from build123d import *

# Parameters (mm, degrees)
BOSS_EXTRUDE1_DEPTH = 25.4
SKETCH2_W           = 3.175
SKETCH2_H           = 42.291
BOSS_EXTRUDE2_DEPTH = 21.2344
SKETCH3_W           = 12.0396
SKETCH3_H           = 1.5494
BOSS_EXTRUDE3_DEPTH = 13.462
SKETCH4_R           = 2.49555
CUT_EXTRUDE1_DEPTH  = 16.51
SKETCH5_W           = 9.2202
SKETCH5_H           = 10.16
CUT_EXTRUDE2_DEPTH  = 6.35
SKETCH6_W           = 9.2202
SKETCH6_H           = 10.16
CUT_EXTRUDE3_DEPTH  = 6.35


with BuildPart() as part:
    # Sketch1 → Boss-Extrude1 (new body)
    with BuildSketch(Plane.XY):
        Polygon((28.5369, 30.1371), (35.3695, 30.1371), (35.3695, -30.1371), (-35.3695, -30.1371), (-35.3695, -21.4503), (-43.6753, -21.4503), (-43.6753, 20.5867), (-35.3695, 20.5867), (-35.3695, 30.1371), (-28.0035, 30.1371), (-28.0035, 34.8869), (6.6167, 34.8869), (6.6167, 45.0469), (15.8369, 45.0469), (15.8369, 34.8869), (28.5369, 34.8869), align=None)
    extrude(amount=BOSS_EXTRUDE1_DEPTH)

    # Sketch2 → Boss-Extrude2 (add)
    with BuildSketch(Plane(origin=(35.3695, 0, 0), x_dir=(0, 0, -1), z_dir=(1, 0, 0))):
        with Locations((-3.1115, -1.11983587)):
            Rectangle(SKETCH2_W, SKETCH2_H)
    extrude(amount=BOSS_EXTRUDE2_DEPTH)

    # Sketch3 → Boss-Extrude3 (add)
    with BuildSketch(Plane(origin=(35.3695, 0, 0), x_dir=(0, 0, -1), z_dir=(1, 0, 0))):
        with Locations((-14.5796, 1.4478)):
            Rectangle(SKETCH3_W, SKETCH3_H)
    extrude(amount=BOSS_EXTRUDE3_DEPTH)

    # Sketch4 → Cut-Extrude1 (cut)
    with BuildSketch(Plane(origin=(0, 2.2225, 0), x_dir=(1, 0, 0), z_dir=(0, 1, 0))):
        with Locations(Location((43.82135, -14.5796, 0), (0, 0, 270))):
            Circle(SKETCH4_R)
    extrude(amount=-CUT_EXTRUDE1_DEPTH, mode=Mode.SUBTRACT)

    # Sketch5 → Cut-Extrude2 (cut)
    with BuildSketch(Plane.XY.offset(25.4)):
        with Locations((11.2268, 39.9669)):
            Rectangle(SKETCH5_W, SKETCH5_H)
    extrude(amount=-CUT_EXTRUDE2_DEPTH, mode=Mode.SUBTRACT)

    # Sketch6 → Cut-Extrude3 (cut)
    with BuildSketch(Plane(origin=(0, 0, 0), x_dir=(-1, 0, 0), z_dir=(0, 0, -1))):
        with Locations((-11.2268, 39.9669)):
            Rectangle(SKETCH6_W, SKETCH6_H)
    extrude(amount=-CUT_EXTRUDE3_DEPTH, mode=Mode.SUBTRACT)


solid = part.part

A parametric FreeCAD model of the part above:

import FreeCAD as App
import Part
import Sketcher
from FreeCAD import Vector
Q = App.Units.Quantity


def add_polygon(sketch, points):
    """Adds a closed chain of lines whose ends are joined by coincident constraints."""
    first, n = sketch.GeometryCount, len(points)
    for a, b in zip(points, points[1:] + points[:1]):
        sketch.addGeometry(Part.LineSegment(App.Vector(*a, 0), App.Vector(*b, 0)), False)
    for i in range(n):
        sketch.addConstraint(Sketcher.Constraint("Coincident", first + i, 2, first + (i + 1) % n, 1))

doc = App.newDocument("Part")
body = doc.addObject("PartDesign::Body", "Body")

# Sketch on XY plane
sketch1 = doc.addObject("Sketcher::SketchObject", "Sketch")
body.addObject(sketch1)
sketch1.AttachmentSupport = (doc.XY_Plane, [""])
sketch1.MapMode = "FlatFace"
add_polygon(sketch1, [(35.4, 30.1), (28.5, 30.1), (28.5, 34.9), (15.8, 34.9), (15.8, 45), (6.6, 45), (6.6, 34.9), (-28, 34.9), (-28, 30.1), (-35.4, 30.1), (-35.4, 20.6), (-43.7, 20.6), (-43.7, -21.5), (-35.4, -21.5), (-35.4, -30.1), (35.4, -30.1)])  # lines 0-15
sketch1.addConstraint(Sketcher.Constraint("Horizontal", 0))
sketch1.addConstraint(Sketcher.Constraint("Vertical", 1))
sketch1.addConstraint(Sketcher.Constraint("Horizontal", 2))
sketch1.addConstraint(Sketcher.Constraint("Vertical", 3))
sketch1.addConstraint(Sketcher.Constraint("Horizontal", 4))
sketch1.addConstraint(Sketcher.Constraint("Vertical", 5))
sketch1.addConstraint(Sketcher.Constraint("Horizontal", 6))
sketch1.addConstraint(Sketcher.Constraint("Vertical", 7))
sketch1.addConstraint(Sketcher.Constraint("Horizontal", 8))
sketch1.addConstraint(Sketcher.Constraint("Vertical", 9))
sketch1.addConstraint(Sketcher.Constraint("Horizontal", 10))
sketch1.addConstraint(Sketcher.Constraint("Vertical", 11))
sketch1.addConstraint(Sketcher.Constraint("Horizontal", 12))
sketch1.addConstraint(Sketcher.Constraint("Vertical", 13))
sketch1.addConstraint(Sketcher.Constraint("Horizontal", 14))
sketch1.addConstraint(Sketcher.Constraint("Vertical", 15))
sketch1.addConstraint(Sketcher.Constraint("Symmetric", 8, 2, 14, 2, -1, 1))
sketch1.addConstraint(Sketcher.Constraint("Symmetric", 13, 2, 15, 2, -1, 1))
sketch1.addConstraint(Sketcher.Constraint("Horizontal", 2, 2, 5, 2))
sketch1.addConstraint(Sketcher.Constraint("DistanceX", 2, 2, 2, 1, Q("0.5 in")))
sketch1.addConstraint(Sketcher.Constraint("DistanceY", 3, 1, 3, 2, Q("0.4 in")))
sketch1.addConstraint(Sketcher.Constraint("DistanceX", 8, 2, 8, 1, Q("0.29 in")))
sketch1.addConstraint(Sketcher.Constraint("DistanceX", 0, 2, 0, 1, Q("0.269 in")))
sketch1.addConstraint(Sketcher.Constraint("DistanceX", 4, 2, 4, 1, Q("0.363 in")))
sketch1.addConstraint(Sketcher.Constraint("DistanceX", 6, 2, 6, 1, Q("1.363 in")))
sketch1.addConstraint(Sketcher.Constraint("DistanceX", 10, 2, 10, 1, Q("0.327 in")))
sketch1.addConstraint(Sketcher.Constraint("DistanceY", 1, 1, 1, 2, Q("0.187 in")))
sketch1.addConstraint(Sketcher.Constraint("DistanceY", 9, 2, 9, 1, Q("0.376 in")))
sketch1.addConstraint(Sketcher.Constraint("DistanceY", 11, 2, 11, 1, Q("1.655 in")))
sketch1.addConstraint(Sketcher.Constraint("DistanceY", 13, 2, 13, 1, Q("0.342 in")))
pad1 = doc.addObject("PartDesign::Pad", "Pad")
body.addObject(pad1)
pad1.Profile = sketch1
pad1.Length = Q("1 in")

# Sketch on YZ plane
sketch2 = doc.addObject("Sketcher::SketchObject", "Sketch001")
body.addObject(sketch2)
sketch2.AttachmentSupport = (doc.YZ_Plane, [""])
sketch2.MapMode = "FlatFace"
sketch2.AttachmentOffset = App.Placement(Vector(0, 0, 1.3925 * 25.4), App.Rotation())
add_polygon(sketch2, [(20, 4.7), (-22.3, 4.7), (-22.3, 1.5), (20, 1.5)])  # lines 0-3
sketch2.addConstraint(Sketcher.Constraint("Horizontal", 0))
sketch2.addConstraint(Sketcher.Constraint("Vertical", 1))
sketch2.addConstraint(Sketcher.Constraint("Horizontal", 2))
sketch2.addConstraint(Sketcher.Constraint("Vertical", 3))
sketch2.addConstraint(Sketcher.Constraint("DistanceX", 0, 2, 0, 1, Q("1.665 in")))
sketch2.addConstraint(Sketcher.Constraint("DistanceY", 1, 2, 1, 1, Q("0.125 in")))
sketch2.addConstraint(Sketcher.Constraint("DistanceY", -1, 1, 1, 2, Q("0.06 in")))
sketch2.addConstraint(Sketcher.Constraint("DistanceX", 0, 2, -1, 1, 22.265336))
pad2 = doc.addObject("PartDesign::Pad", "Pad001")
body.addObject(pad2)
pad2.Profile = sketch2
pad2.Length = Q("0.836 in")

# Sketch on YZ plane
sketch3 = doc.addObject("Sketcher::SketchObject", "Sketch002")
body.addObject(sketch3)
sketch3.AttachmentSupport = (doc.YZ_Plane, [""])
sketch3.MapMode = "FlatFace"
sketch3.AttachmentOffset = App.Placement(Vector(0, 0, 1.3925 * 25.4), App.Rotation())
add_polygon(sketch3, [(2.2, 20.6), (0.7, 20.6), (0.7, 8.6), (2.2, 8.6)])  # lines 0-3
sketch3.addConstraint(Sketcher.Constraint("Horizontal", 0))
sketch3.addConstraint(Sketcher.Constraint("Vertical", 1))
sketch3.addConstraint(Sketcher.Constraint("Horizontal", 2))
sketch3.addConstraint(Sketcher.Constraint("Vertical", 3))
sketch3.addConstraint(Sketcher.Constraint("DistanceX", 0, 2, 0, 1, Q("0.061 in")))
sketch3.addConstraint(Sketcher.Constraint("DistanceY", 1, 2, 1, 1, Q("0.474 in")))
sketch3.addConstraint(Sketcher.Constraint("DistanceY", -1, 1, 0, 2, Q("0.811 in")))
sketch3.addConstraint(Sketcher.Constraint("DistanceX", -1, 1, 0, 2, Q("0.0265 in")))
pad3 = doc.addObject("PartDesign::Pad", "Pad002")
body.addObject(pad3)
pad3.Profile = sketch3
pad3.Length = Q("0.53 in")

# Sketch on XZ plane
sketch4 = doc.addObject("Sketcher::SketchObject", "Sketch003")
body.addObject(sketch4)
sketch4.AttachmentSupport = (doc.XZ_Plane, [""])
sketch4.MapMode = "FlatFace"
sketch4.AttachmentOffset = App.Placement(Vector(0, 0, -0.0875 * 25.4), App.Rotation())
sketch4.addGeometry(Part.Circle(Vector(43.8, 14.6, 0), Vector(0, 0, 1), 2.5), False)
sketch4.addConstraint(Sketcher.Constraint("Diameter", 0, Q("0.1965 in")))
sketch4.addConstraint(Sketcher.Constraint("DistanceY", -1, 1, 0, 3, Q("0.574 in")))
sketch4.addConstraint(Sketcher.Constraint("DistanceX", -1, 1, 0, 3, 43.82135))
pocket1 = doc.addObject("PartDesign::Pocket", "Pocket")
body.addObject(pocket1)
pocket1.Profile = sketch4
pocket1.Length = Q("0.65 in")
pocket1.Reversed = True

# Sketch on XY plane
sketch5 = doc.addObject("Sketcher::SketchObject", "Sketch004")
body.addObject(sketch5)
sketch5.AttachmentSupport = (doc.XY_Plane, [""])
sketch5.MapMode = "FlatFace"
sketch5.AttachmentOffset = App.Placement(Vector(0, 0, 1 * 25.4), App.Rotation())
add_polygon(sketch5, [(7, 45), (7, 35), (16, 35), (16, 45)])  # lines 0-3
sketch5.addConstraint(Sketcher.Constraint("Vertical", 0))
sketch5.addConstraint(Sketcher.Constraint("Horizontal", 1))
sketch5.addConstraint(Sketcher.Constraint("Vertical", 2))
sketch5.addConstraint(Sketcher.Constraint("Horizontal", 3))
sketch5.addConstraint(Sketcher.Constraint("DistanceY", 0, 2, 0, 1, Q("0.4 in")))
sketch5.addConstraint(Sketcher.Constraint("DistanceX", 1, 1, 1, 2, Q("0.363 in")))
sketch5.addConstraint(Sketcher.Constraint("DistanceX", -1, 1, 0, 2, Q("0.2605 in")))
sketch5.addConstraint(Sketcher.Constraint("DistanceY", -1, 1, 0, 2, Q("1.3735 in")))
pocket2 = doc.addObject("PartDesign::Pocket", "Pocket001")
body.addObject(pocket2)
pocket2.Profile = sketch5
pocket2.Length = Q("0.25 in")

# Sketch on XY plane
sketch6 = doc.addObject("Sketcher::SketchObject", "Sketch005")
body.addObject(sketch6)
sketch6.AttachmentSupport = (doc.XY_Plane, [""])
sketch6.MapMode = "FlatFace"
add_polygon(sketch6, [(16, 45), (16, 35), (7, 35), (7, 45)])  # lines 0-3
sketch6.addConstraint(Sketcher.Constraint("Vertical", 0))
sketch6.addConstraint(Sketcher.Constraint("Horizontal", 1))
sketch6.addConstraint(Sketcher.Constraint("Vertical", 2))
sketch6.addConstraint(Sketcher.Constraint("Horizontal", 3))
sketch6.addConstraint(Sketcher.Constraint("DistanceY", 0, 2, 0, 1, Q("0.4 in")))
sketch6.addConstraint(Sketcher.Constraint("DistanceX", 1, 2, 1, 1, Q("0.363 in")))
sketch6.addConstraint(Sketcher.Constraint("DistanceX", -1, 1, 0, 2, Q("0.6235 in")))
sketch6.addConstraint(Sketcher.Constraint("DistanceY", -1, 1, 0, 2, Q("1.3735 in")))
pocket3 = doc.addObject("PartDesign::Pocket", "Pocket002")
body.addObject(pocket3)
pocket3.Profile = sketch6
pocket3.Length = Q("0.25 in")
pocket3.Reversed = True

doc.recompute()
